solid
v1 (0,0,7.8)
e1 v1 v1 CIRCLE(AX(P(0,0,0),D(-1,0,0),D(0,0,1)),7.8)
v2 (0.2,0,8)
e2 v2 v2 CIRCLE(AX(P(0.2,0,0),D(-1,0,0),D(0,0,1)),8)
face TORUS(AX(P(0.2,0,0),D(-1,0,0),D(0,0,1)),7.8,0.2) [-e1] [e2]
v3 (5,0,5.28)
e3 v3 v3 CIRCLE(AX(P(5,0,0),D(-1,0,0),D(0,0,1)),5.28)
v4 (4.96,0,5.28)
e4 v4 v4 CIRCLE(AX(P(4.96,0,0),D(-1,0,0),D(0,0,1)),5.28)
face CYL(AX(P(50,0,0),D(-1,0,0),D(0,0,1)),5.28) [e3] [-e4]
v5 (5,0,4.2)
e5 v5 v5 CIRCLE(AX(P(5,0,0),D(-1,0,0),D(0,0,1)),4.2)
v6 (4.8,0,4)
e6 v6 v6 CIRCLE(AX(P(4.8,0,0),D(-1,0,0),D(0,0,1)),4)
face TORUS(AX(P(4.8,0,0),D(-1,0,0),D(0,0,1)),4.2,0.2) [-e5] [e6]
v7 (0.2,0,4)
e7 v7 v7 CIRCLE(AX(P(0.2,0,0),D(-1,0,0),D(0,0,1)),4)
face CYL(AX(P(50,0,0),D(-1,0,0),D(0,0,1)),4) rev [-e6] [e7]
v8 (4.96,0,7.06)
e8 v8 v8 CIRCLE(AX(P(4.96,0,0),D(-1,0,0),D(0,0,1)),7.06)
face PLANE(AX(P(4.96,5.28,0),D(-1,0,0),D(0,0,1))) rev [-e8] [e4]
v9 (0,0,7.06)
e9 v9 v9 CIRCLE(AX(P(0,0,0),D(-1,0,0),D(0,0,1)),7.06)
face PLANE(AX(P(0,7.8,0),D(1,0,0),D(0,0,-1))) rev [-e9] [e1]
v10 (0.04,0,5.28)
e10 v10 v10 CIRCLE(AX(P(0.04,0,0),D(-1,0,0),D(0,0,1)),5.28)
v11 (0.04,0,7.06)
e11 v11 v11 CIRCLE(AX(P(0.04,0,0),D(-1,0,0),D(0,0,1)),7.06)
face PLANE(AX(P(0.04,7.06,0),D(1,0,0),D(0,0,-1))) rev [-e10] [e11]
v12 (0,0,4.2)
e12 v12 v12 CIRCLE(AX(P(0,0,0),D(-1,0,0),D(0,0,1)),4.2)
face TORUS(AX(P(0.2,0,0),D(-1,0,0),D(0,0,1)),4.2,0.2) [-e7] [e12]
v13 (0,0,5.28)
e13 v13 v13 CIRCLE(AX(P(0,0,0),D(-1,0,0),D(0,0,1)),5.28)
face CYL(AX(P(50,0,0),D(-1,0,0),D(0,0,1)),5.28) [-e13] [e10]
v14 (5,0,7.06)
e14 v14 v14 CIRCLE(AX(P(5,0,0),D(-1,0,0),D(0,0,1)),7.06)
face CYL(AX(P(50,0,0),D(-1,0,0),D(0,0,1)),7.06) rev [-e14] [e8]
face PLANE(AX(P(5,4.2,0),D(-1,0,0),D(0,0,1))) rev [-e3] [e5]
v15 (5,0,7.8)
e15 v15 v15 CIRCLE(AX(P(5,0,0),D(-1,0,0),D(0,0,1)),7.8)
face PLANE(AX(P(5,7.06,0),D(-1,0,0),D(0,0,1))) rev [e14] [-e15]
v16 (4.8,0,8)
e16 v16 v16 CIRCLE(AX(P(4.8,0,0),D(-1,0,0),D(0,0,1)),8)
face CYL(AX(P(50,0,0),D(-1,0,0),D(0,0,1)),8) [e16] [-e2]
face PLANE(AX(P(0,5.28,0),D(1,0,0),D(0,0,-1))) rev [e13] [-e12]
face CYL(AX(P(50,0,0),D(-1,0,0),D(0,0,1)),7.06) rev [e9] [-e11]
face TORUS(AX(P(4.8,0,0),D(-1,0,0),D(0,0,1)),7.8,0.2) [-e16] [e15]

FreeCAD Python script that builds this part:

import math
import FreeCAD as App
import Part
import Sketcher
Q = App.Units.Quantity

doc = App.newDocument("Part")
body = doc.addObject("PartDesign::Body", "Body")

# Sketch on XY plane
sketch1 = doc.addObject("Sketcher::SketchObject", "Sketch")
body.addObject(sketch1)
sketch1.AttachmentSupport = (doc.XY_Plane, [""])
sketch1.MapMode = "FlatFace"
sketch1.addGeometry(Part.LineSegment(App.Vector(0.2, 4, 0), App.Vector(4.8, 4, 0)), False)
sketch1.addGeometry(Part.ArcOfCircle(Part.Circle(App.Vector(4.8, 4.2, 0), App.Vector(0, 0, 1), 0.2), math.radians(-90), math.radians(0)), False)
sketch1.addGeometry(Part.LineSegment(App.Vector(5, 4.2, 0), App.Vector(5, 5.28, 0)), False)
sketch1.addGeometry(Part.LineSegment(App.Vector(5, 5.28, 0), App.Vector(4.96, 5.28, 0)), False)
sketch1.addGeometry(Part.LineSegment(App.Vector(4.96, 5.28, 0), App.Vector(4.96, 7.06, 0)), False)
sketch1.addGeometry(Part.LineSegment(App.Vector(4.96, 7.06, 0), App.Vector(5, 7.06, 0)), False)
sketch1.addGeometry(Part.LineSegment(App.Vector(5, 7.06, 0), App.Vector(5, 7.8, 0)), False)
sketch1.addGeometry(Part.ArcOfCircle(Part.Circle(App.Vector(4.8, 7.8, 0), App.Vector(0, 0, 1), 0.2), math.radians(0), math.radians(90)), False)
sketch1.addGeometry(Part.LineSegment(App.Vector(4.8, 8, 0), App.Vector(0.2, 8, 0)), False)
sketch1.addGeometry(Part.ArcOfCircle(Part.Circle(App.Vector(0.2, 7.8, 0), App.Vector(0, 0, 1), 0.2), math.radians(90), math.radians(180)), False)
sketch1.addGeometry(Part.LineSegment(App.Vector(0, 7.8, 0), App.Vector(0, 7.06, 0)), False)
sketch1.addGeometry(Part.LineSegment(App.Vector(0, 7.06, 0), App.Vector(0.04, 7.06, 0)), False)
sketch1.addGeometry(Part.LineSegment(App.Vector(0.04, 7.06, 0), App.Vector(0.04, 5.28, 0)), False)
sketch1.addGeometry(Part.LineSegment(App.Vector(0.04, 5.28, 0), App.Vector(0, 5.28, 0)), False)
sketch1.addGeometry(Part.LineSegment(App.Vector(0, 5.28, 0), App.Vector(0, 4.2, 0)), False)
sketch1.addGeometry(Part.ArcOfCircle(Part.Circle(App.Vector(0.2, 4.2, 0), App.Vector(0, 0, 1), 0.2), math.radians(-180), math.radians(-90)), False)
sketch1.addConstraint(Sketcher.Constraint("Tangent", 0, 2, 1, 1))
sketch1.addConstraint(Sketcher.Constraint("Tangent", 1, 2, 2, 1))
sketch1.addConstraint(Sketcher.Constraint("Coincident", 2, 2, 3, 1))
sketch1.addConstraint(Sketcher.Constraint("Coincident", 3, 2, 4, 1))
sketch1.addConstraint(Sketcher.Constraint("Coincident", 4, 2, 5, 1))
sketch1.addConstraint(Sketcher.Constraint("Coincident", 5, 2, 6, 1))
sketch1.addConstraint(Sketcher.Constraint("Tangent", 6, 2, 7, 1))
sketch1.addConstraint(Sketcher.Constraint("Tangent", 7, 2, 8, 1))
sketch1.addConstraint(Sketcher.Constraint("Tangent", 8, 2, 9, 1))
sketch1.addConstraint(Sketcher.Constraint("Tangent", 9, 2, 10, 1))
sketch1.addConstraint(Sketcher.Constraint("Coincident", 10, 2, 11, 1))
sketch1.addConstraint(Sketcher.Constraint("Coincident", 11, 2, 12, 1))
sketch1.addConstraint(Sketcher.Constraint("Coincident", 12, 2, 13, 1))
sketch1.addConstraint(Sketcher.Constraint("Coincident", 13, 2, 14, 1))
sketch1.addConstraint(Sketcher.Constraint("Tangent", 14, 2, 15, 1))
sketch1.addConstraint(Sketcher.Constraint("Tangent", 15, 2, 0, 1))
sketch1.addConstraint(Sketcher.Constraint("Horizontal", 0))
sketch1.addConstraint(Sketcher.Constraint("Vertical", 2))
sketch1.addConstraint(Sketcher.Constraint("Horizontal", 3))
sketch1.addConstraint(Sketcher.Constraint("Vertical", 4))
sketch1.addConstraint(Sketcher.Constraint("Horizontal", 5))
sketch1.addConstraint(Sketcher.Constraint("Vertical", 6))
sketch1.addConstraint(Sketcher.Constraint("Horizontal", 8))
sketch1.addConstraint(Sketcher.Constraint("Vertical", 10))
sketch1.addConstraint(Sketcher.Constraint("Horizontal", 11))
sketch1.addConstraint(Sketcher.Constraint("Vertical", 12))
sketch1.addConstraint(Sketcher.Constraint("Horizontal", 13))
sketch1.addConstraint(Sketcher.Constraint("Vertical", 14))
sketch1.addConstraint(Sketcher.Constraint("Equal", 1, 7))
sketch1.addConstraint(Sketcher.Constraint("Equal", 7, 9))
sketch1.addConstraint(Sketcher.Constraint("Equal", 9, 15))
sketch1.addConstraint(Sketcher.Constraint("PointOnObject", 9, 2, -2))
sketch1.addConstraint(Sketcher.Constraint("PointOnObject", 13, 2, -2))
sketch1.addConstraint(Sketcher.Constraint("Horizontal", 5, 2, 10, 2))
sketch1.addConstraint(Sketcher.Constraint("Horizontal", 3, 2, 12, 2))
sketch1.addConstraint(Sketcher.Constraint("Vertical", 1, 3, 7, 3))
sketch1.addConstraint(Sketcher.Constraint("Equal", 5, 11))
sketch1.addConstraint(Sketcher.Constraint("Radius", 1, Q("0.2 mm")))
sketch1.addConstraint(Sketcher.Constraint("DistanceX", 0, 1, 0, 2, Q("4.6 mm")))
sketch1.addConstraint(Sketcher.Constraint("DistanceY", -1, 1, 0, 2, Q("4 mm")))
sketch1.addConstraint(Sketcher.Constraint("DistanceY", -1, 1, 7, 2, Q("8 mm")))
sketch1.addConstraint(Sketcher.Constraint("DistanceX", 3, 2, 3, 1, Q("0.04 mm")))
sketch1.addConstraint(Sketcher.Constraint("DistanceY", 2, 1, 2, 2, Q("1.08 mm")))
sketch1.addConstraint(Sketcher.Constraint("DistanceY", 4, 1, 4, 2, Q("1.78 mm")))
revolution = doc.addObject("PartDesign::Revolution", "Revolution")
body.addObject(revolution)
revolution.Profile = sketch1
revolution.ReferenceAxis = (sketch1, ["H_Axis"])
revolution.Angle = 360

doc.recompute()
